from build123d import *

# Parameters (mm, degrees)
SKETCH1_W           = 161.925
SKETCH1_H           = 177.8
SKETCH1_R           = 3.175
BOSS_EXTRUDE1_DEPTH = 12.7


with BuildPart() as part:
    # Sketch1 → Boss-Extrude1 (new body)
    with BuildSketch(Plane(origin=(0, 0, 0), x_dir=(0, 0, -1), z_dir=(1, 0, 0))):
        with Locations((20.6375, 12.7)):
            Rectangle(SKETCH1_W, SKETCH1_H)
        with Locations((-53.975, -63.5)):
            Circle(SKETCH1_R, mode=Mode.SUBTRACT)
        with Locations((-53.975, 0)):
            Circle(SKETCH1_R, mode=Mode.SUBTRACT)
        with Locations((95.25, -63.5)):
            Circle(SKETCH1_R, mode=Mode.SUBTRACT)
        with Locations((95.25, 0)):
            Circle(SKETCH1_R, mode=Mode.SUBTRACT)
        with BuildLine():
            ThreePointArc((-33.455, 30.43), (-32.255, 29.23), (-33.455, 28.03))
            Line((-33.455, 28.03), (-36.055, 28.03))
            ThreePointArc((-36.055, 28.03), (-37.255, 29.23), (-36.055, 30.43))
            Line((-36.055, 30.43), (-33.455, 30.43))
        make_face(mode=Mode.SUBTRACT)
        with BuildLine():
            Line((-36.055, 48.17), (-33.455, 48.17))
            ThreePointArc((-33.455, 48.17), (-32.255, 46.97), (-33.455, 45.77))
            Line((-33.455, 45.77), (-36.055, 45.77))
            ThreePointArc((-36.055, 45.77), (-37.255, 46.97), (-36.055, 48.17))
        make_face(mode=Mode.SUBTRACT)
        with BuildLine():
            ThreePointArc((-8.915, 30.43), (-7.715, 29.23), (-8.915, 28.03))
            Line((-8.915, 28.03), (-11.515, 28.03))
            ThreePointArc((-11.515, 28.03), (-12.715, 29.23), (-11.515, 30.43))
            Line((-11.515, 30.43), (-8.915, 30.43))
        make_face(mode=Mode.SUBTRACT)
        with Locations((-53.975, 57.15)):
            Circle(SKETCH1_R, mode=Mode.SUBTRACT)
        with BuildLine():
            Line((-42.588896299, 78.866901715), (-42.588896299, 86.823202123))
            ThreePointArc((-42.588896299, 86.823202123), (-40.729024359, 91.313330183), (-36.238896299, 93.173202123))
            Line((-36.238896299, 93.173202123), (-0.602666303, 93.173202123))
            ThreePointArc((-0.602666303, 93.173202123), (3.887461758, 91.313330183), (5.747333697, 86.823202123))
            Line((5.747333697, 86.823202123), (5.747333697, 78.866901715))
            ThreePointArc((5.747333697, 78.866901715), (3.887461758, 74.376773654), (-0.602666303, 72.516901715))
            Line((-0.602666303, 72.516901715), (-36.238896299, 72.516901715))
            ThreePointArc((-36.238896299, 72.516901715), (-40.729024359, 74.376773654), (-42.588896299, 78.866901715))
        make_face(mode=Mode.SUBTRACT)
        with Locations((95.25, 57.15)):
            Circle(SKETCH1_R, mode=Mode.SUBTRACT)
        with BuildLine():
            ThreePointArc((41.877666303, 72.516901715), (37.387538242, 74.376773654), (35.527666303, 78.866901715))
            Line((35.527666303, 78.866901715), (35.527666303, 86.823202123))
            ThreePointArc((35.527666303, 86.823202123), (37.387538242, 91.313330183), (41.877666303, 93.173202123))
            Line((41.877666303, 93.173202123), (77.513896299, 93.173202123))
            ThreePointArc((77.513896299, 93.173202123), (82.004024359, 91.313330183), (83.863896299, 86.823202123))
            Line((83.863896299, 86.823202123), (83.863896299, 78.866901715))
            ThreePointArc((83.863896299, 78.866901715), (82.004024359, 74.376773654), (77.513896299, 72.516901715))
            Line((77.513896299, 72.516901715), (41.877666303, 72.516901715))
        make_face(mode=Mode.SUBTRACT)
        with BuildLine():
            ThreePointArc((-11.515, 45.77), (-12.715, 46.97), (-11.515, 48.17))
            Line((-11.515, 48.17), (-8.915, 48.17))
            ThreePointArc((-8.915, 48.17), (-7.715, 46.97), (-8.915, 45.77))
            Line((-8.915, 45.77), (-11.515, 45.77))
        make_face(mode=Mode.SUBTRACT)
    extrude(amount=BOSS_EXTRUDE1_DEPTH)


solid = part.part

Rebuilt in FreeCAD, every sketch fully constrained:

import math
import FreeCAD as App
import Part
import Sketcher
from FreeCAD import Vector
Q = App.Units.Quantity

doc = App.newDocument("Part")
body = doc.addObject("PartDesign::Body", "Body")

# Sketch on YZ plane
sketch1 = body.newObject("Sketcher::SketchObject", "Sketch")
sketch1.AttachmentSupport = (doc.getObject("YZ_Plane"), [""])
sketch1.MapMode = "FlatFace"
sketch1.addGeometry(Part.LineSegment(Vector(101.6, 60.3, 0), Vector(-76.2, 60.3, 0)), False)
sketch1.addGeometry(Part.LineSegment(Vector(-76.2, 60.3, 0), Vector(-76.2, -101.6, 0)), False)
sketch1.addGeometry(Part.LineSegment(Vector(-76.2, -101.6, 0), Vector(101.6, -101.6, 0)), False)
sketch1.addGeometry(Part.LineSegment(Vector(101.6, -101.6, 0), Vector(101.6, 60.3, 0)), False)
sketch1.addGeometry(Part.Circle(Vector(-63.5, 54, 0), Vector(0, 0, 1), 3.2), False)
sketch1.addGeometry(Part.Circle(Vector(0, 54, 0), Vector(0, 0, 1), 3.2), False)
sketch1.addGeometry(Part.Circle(Vector(-63.5, -95.2, 0), Vector(0, 0, 1), 3.2), False)
sketch1.addGeometry(Part.Circle(Vector(0, -95.2, 0), Vector(0, 0, 1), 3.2), False)
sketch1.addGeometry(Part.LineSegment(Vector(30.4, 36.1, 0), Vector(30.4, 33.5, 0)), False)
sketch1.addGeometry(Part.ArcOfCircle(Part.Circle(Vector(29.2, 33.5, 0), Vector(0, 0, 1), 1.2), math.radians(180), math.radians(360)), False)
sketch1.addGeometry(Part.LineSegment(Vector(28, 33.5, 0), Vector(28, 36.1, 0)), False)
sketch1.addGeometry(Part.ArcOfCircle(Part.Circle(Vector(29.2, 36.1, 0), Vector(0, 0, 1), 1.2), math.radians(0), math.radians(180)), False)
sketch1.addGeometry(Part.ArcOfCircle(Part.Circle(Vector(47, 36.1, 0), Vector(0, 0, 1), 1.2), math.radians(0), math.radians(180)), False)
sketch1.addGeometry(Part.LineSegment(Vector(48.2, 36.1, 0), Vector(48.2, 33.5, 0)), False)
sketch1.addGeometry(Part.ArcOfCircle(Part.Circle(Vector(47, 33.5, 0), Vector(0, 0, 1), 1.2), math.radians(180), math.radians(360)), False)
sketch1.addGeometry(Part.LineSegment(Vector(45.8, 33.5, 0), Vector(45.8, 36.1, 0)), False)
sketch1.addGeometry(Part.LineSegment(Vector(30.4, 11.5, 0), Vector(30.4, 8.9, 0)), False)
sketch1.addGeometry(Part.ArcOfCircle(Part.Circle(Vector(29.2, 8.9, 0), Vector(0, 0, 1), 1.2), math.radians(180), math.radians(360)), False)
sketch1.addGeometry(Part.LineSegment(Vector(28, 8.9, 0), Vector(28, 11.5, 0)), False)
sketch1.addGeometry(Part.ArcOfCircle(Part.Circle(Vector(29.2, 11.5, 0), Vector(0, 0, 1), 1.2), math.radians(0), math.radians(180)), False)
sketch1.addGeometry(Part.LineSegment(Vector(45.8, 8.9, 0), Vector(45.8, 11.5, 0)), False)
sketch1.addGeometry(Part.ArcOfCircle(Part.Circle(Vector(47, 11.5, 0), Vector(0, 0, 1), 1.2), math.radians(0), math.radians(180)), False)
sketch1.addGeometry(Part.LineSegment(Vector(48.2, 11.5, 0), Vector(48.2, 8.9, 0)), False)
sketch1.addGeometry(Part.ArcOfCircle(Part.Circle(Vector(47, 8.9, 0), Vector(0, 0, 1), 1.2), math.radians(180), math.radians(360)), False)
sketch1.addGeometry(Part.Circle(Vector(57.1, 54, 0), Vector(0, 0, 1), 3.2), False)
sketch1.addGeometry(Part.ArcOfCircle(Part.Circle(Vector(78.9, 36.2, 0), Vector(0, 0, 1), 6.3), math.radians(90), math.radians(180)), False)
sketch1.addGeometry(Part.LineSegment(Vector(78.9, 42.6, 0), Vector(86.8, 42.6, 0)), False)
sketch1.addGeometry(Part.ArcOfCircle(Part.Circle(Vector(86.8, 36.2, 0), Vector(0, 0, 1), 6.4), math.radians(0), math.radians(90)), False)
sketch1.addGeometry(Part.LineSegment(Vector(93.2, 36.2, 0), Vector(93.2, 0.6, 0)), False)
sketch1.addGeometry(Part.ArcOfCircle(Part.Circle(Vector(86.8, 0.6, 0), Vector(0, 0, 1), 6.3), math.radians(-90), math.radians(0)), False)
sketch1.addGeometry(Part.LineSegment(Vector(86.8, -5.7, 0), Vector(78.9, -5.7, 0)), False)
sketch1.addGeometry(Part.ArcOfCircle(Part.Circle(Vector(78.9, 0.6, 0), Vector(0, 0, 1), 6.3), math.radians(180), math.radians(270)), False)
sketch1.addGeometry(Part.LineSegment(Vector(72.5, 0.6, 0), Vector(72.5, 36.2, 0)), False)
sketch1.addGeometry(Part.Circle(Vector(57.1, -95.2, 0), Vector(0, 0, 1), 3.2), False)
sketch1.addGeometry(Part.LineSegment(Vector(72.5, -77.5, 0), Vector(72.5, -41.9, 0)), False)
sketch1.addGeometry(Part.ArcOfCircle(Part.Circle(Vector(78.9, -41.9, 0), Vector(0, 0, 1), 6.3), math.radians(90), math.radians(180)), False)
sketch1.addGeometry(Part.LineSegment(Vector(78.9, -35.5, 0), Vector(86.8, -35.5, 0)), False)
sketch1.addGeometry(Part.ArcOfCircle(Part.Circle(Vector(86.8, -41.9, 0), Vector(0, 0, 1), 6.3), math.radians(0), math.radians(90)), False)
sketch1.addGeometry(Part.LineSegment(Vector(93.2, -41.9, 0), Vector(93.2, -77.5, 0)), False)
sketch1.addGeometry(Part.ArcOfCircle(Part.Circle(Vector(86.8, -77.5, 0), Vector(0, 0, 1), 6.4), math.radians(-90), math.radians(0)), False)
sketch1.addGeometry(Part.LineSegment(Vector(86.8, -83.9, 0), Vector(78.9, -83.9, 0)), False)
sketch1.addGeometry(Part.ArcOfCircle(Part.Circle(Vector(78.9, -77.5, 0), Vector(0, 0, 1), 6.3), math.radians(180), math.radians(270)), False)
sketch1.addConstraint(Sketcher.Constraint("Coincident", 0, 2, 1, 1))
sketch1.addConstraint(Sketcher.Constraint("Coincident", 1, 2, 2, 1))
sketch1.addConstraint(Sketcher.Constraint("Coincident", 2, 2, 3, 1))
sketch1.addConstraint(Sketcher.Constraint("Coincident", 3, 2, 0, 1))
sketch1.addConstraint(Sketcher.Constraint("Tangent", 8, 2, 9, 2))
sketch1.addConstraint(Sketcher.Constraint("Tangent", 9, 1, 10, 1))
sketch1.addConstraint(Sketcher.Constraint("Tangent", 10, 2, 11, 2))
sketch1.addConstraint(Sketcher.Constraint("Tangent", 11, 1, 8, 1))
sketch1.addConstraint(Sketcher.Constraint("Tangent", 12, 1, 13, 1))
sketch1.addConstraint(Sketcher.Constraint("Tangent", 13, 2, 14, 2))
sketch1.addConstraint(Sketcher.Constraint("Tangent", 14, 1, 15, 1))
sketch1.addConstraint(Sketcher.Constraint("Tangent", 15, 2, 12, 2))
sketch1.addConstraint(Sketcher.Constraint("Tangent", 16, 2, 17, 2))
sketch1.addConstraint(Sketcher.Constraint("Tangent", 17, 1, 18, 1))
sketch1.addConstraint(Sketcher.Constraint("Tangent", 18, 2, 19, 2))
sketch1.addConstraint(Sketcher.Constraint("Tangent", 19, 1, 16, 1))
sketch1.addConstraint(Sketcher.Constraint("Tangent", 20, 2, 21, 2))
sketch1.addConstraint(Sketcher.Constraint("Tangent", 21, 1, 22, 1))
sketch1.addConstraint(Sketcher.Constraint("Tangent", 22, 2, 23, 2))
sketch1.addConstraint(Sketcher.Constraint("Tangent", 23, 1, 20, 1))
sketch1.addConstraint(Sketcher.Constraint("Tangent", 25, 1, 26, 1))
sketch1.addConstraint(Sketcher.Constraint("Tangent", 26, 2, 27, 2))
sketch1.addConstraint(Sketcher.Constraint("Tangent", 27, 1, 28, 1))
sketch1.addConstraint(Sketcher.Constraint("Tangent", 28, 2, 29, 2))
sketch1.addConstraint(Sketcher.Constraint("Tangent", 29, 1, 30, 1))
sketch1.addConstraint(Sketcher.Constraint("Tangent", 30, 2, 31, 2))
sketch1.addConstraint(Sketcher.Constraint("Tangent", 31, 1, 32, 1))
sketch1.addConstraint(Sketcher.Constraint("Tangent", 32, 2, 25, 2))
sketch1.addConstraint(Sketcher.Constraint("Tangent", 34, 2, 35, 2))
sketch1.addConstraint(Sketcher.Constraint("Tangent", 35, 1, 36, 1))
sketch1.addConstraint(Sketcher.Constraint("Tangent", 36, 2, 37, 2))
sketch1.addConstraint(Sketcher.Constraint("Tangent", 37, 1, 38, 1))
sketch1.addConstraint(Sketcher.Constraint("Tangent", 38, 2, 39, 2))
sketch1.addConstraint(Sketcher.Constraint("Tangent", 39, 1, 40, 1))
sketch1.addConstraint(Sketcher.Constraint("Tangent", 40, 2, 41, 2))
sketch1.addConstraint(Sketcher.Constraint("Tangent", 41, 1, 34, 1))
sketch1.addConstraint(Sketcher.Constraint("Horizontal", 0))
sketch1.addConstraint(Sketcher.Constraint("Vertical", 1))
sketch1.addConstraint(Sketcher.Constraint("Horizontal", 2))
sketch1.addConstraint(Sketcher.Constraint("Vertical", 3))
sketch1.addConstraint(Sketcher.Constraint("Vertical", 8))
sketch1.addConstraint(Sketcher.Constraint("Vertical", 10))
sketch1.addConstraint(Sketcher.Constraint("Vertical", 13))
sketch1.addConstraint(Sketcher.Constraint("Vertical", 15))
sketch1.addConstraint(Sketcher.Constraint("Vertical", 16))
sketch1.addConstraint(Sketcher.Constraint("Vertical", 18))
sketch1.addConstraint(Sketcher.Constraint("Vertical", 20))
sketch1.addConstraint(Sketcher.Constraint("Vertical", 22))
sketch1.addConstraint(Sketcher.Constraint("Horizontal", 26))
sketch1.addConstraint(Sketcher.Constraint("Vertical", 28))
sketch1.addConstraint(Sketcher.Constraint("Horizontal", 30))
sketch1.addConstraint(Sketcher.Constraint("Vertical", 32))
sketch1.addConstraint(Sketcher.Constraint("Vertical", 34))
sketch1.addConstraint(Sketcher.Constraint("Horizontal", 36))
sketch1.addConstraint(Sketcher.Constraint("Vertical", 38))
sketch1.addConstraint(Sketcher.Constraint("Horizontal", 40))
sketch1.addConstraint(Sketcher.Constraint("Equal", 4, 5))
sketch1.addConstraint(Sketcher.Constraint("Equal", 5, 6))
sketch1.addConstraint(Sketcher.Constraint("Equal", 6, 7))
sketch1.addConstraint(Sketcher.Constraint("Equal", 11, 12))
sketch1.addConstraint(Sketcher.Constraint("Equal", 14, 17))
sketch1.addConstraint(Sketcher.Constraint("Equal", 19, 21))
sketch1.addConstraint(Sketcher.Constraint("Equal", 7, 24))
sketch1.addConstraint(Sketcher.Constraint("Equal", 25, 27))
sketch1.addConstraint(Sketcher.Constraint("Equal", 27, 29))
sketch1.addConstraint(Sketcher.Constraint("Equal", 29, 31))
sketch1.addConstraint(Sketcher.Constraint("Equal", 24, 33))
sketch1.addConstraint(Sketcher.Constraint("Equal", 31, 35))
sketch1.addConstraint(Sketcher.Constraint("Equal", 35, 37))
sketch1.addConstraint(Sketcher.Constraint("Equal", 37, 39))
sketch1.addConstraint(Sketcher.Constraint("Equal", 39, 41))
sketch1.addConstraint(Sketcher.Constraint("PointOnObject", 5, 3, -2))
sketch1.addConstraint(Sketcher.Constraint("PointOnObject", 7, 3, -2))
sketch1.addConstraint(Sketcher.Constraint("Horizontal", 4, 3, 5, 3))
sketch1.addConstraint(Sketcher.Constraint("Horizontal", 6, 3, 7, 3))
sketch1.addConstraint(Sketcher.Constraint("Horizontal", 11, 3, 12, 3))
sketch1.addConstraint(Sketcher.Constraint("Horizontal", 9, 3, 14, 3))
sketch1.addConstraint(Sketcher.Constraint("Horizontal", 19, 3, 21, 3))
sketch1.addConstraint(Sketcher.Constraint("Horizontal", 17, 3, 23, 3))
sketch1.addConstraint(Sketcher.Constraint("Horizontal", 5, 3, 24, 3))
sketch1.addConstraint(Sketcher.Constraint("Horizontal", 7, 3, 33, 3))
sketch1.addConstraint(Sketcher.Constraint("Vertical", 4, 3, 6, 3))
sketch1.addConstraint(Sketcher.Constraint("Vertical", 11, 3, 17, 3))
sketch1.addConstraint(Sketcher.Constraint("Vertical", 14, 3, 21, 3))
sketch1.addConstraint(Sketcher.Constraint("Vertical", 24, 3, 33, 3))
sketch1.addConstraint(Sketcher.Constraint("Vertical", 31, 3, 35, 3))
sketch1.addConstraint(Sketcher.Constraint("Vertical", 29, 3, 37, 3))
sketch1.addConstraint(Sketcher.Constraint("Equal", 15, 16))
sketch1.addConstraint(Sketcher.Constraint("Equal", 32, 34))
sketch1.addConstraint(Sketcher.Constraint("Diameter", 4, Q("0.25 in")))
sketch1.addConstraint(Sketcher.Constraint("DistanceX", 0, 2, 0, 1, Q("7 in")))
sketch1.addConstraint(Sketcher.Constraint("Radius", 25, Q("0.25 in")))
sketch1.addConstraint(Sketcher.Constraint("DistanceX", 0, 2, -1, 1, Q("3 in")))
sketch1.addConstraint(Sketcher.Constraint("DistanceY", 1, 2, -1, 1, Q("4 in")))
sketch1.addConstraint(Sketcher.Constraint("DistanceX", 4, 3, -1, 1, Q("2.5 in")))
sketch1.addConstraint(Sketcher.Constraint("DistanceY", 1, 2, 1, 1, Q("6.375 in")))
sketch1.addConstraint(Sketcher.Constraint("DistanceY", 6, 3, -1, 1, Q("3.75 in")))
sketch1.addConstraint(Sketcher.Constraint("DistanceX", -1, 1, 24, 3, Q("2.25 in")))
sketch1.addConstraint(Sketcher.Constraint("Radius", 9, Q("1.2 mm")))
sketch1.addConstraint(Sketcher.Constraint("DistanceY", 4, 3, 0, 2, Q("0.25 in")))
sketch1.addConstraint(Sketcher.Constraint("DistanceX", 26, 1, 26, 2, Q("7.9563 mm")))
sketch1.addConstraint(Sketcher.Constraint("DistanceY", 8, 2, 8, 1, Q("2.6 mm")))
sketch1.addConstraint(Sketcher.Constraint("DistanceY", 28, 2, 28, 1, Q("35.63623 mm")))
sketch1.addConstraint(Sketcher.Constraint("DistanceX", -1, 1, 9, 3, Q("29.23 mm")))
sketch1.addConstraint(Sketcher.Constraint("DistanceY", -1, 1, 9, 3, Q("33.455 mm")))
sketch1.addConstraint(Sketcher.Constraint("DistanceX", -1, 1, 12, 3, Q("46.97 mm")))
sketch1.addConstraint(Sketcher.Constraint("DistanceY", -1, 1, 17, 3, Q("8.915 mm")))
sketch1.addConstraint(Sketcher.Constraint("DistanceX", -1, 1, 25, 3, Q("78.866902 mm")))
sketch1.addConstraint(Sketcher.Constraint("DistanceY", -1, 1, 25, 3, Q("36.238896 mm")))
sketch1.addConstraint(Sketcher.Constraint("DistanceY", 35, 3, -1, 1, Q("41.877666 mm")))
pad1 = body.newObject("PartDesign::Pad", "Pad")
pad1.Profile = sketch1
pad1.Length = Q("0.5 in")

doc.recompute()
